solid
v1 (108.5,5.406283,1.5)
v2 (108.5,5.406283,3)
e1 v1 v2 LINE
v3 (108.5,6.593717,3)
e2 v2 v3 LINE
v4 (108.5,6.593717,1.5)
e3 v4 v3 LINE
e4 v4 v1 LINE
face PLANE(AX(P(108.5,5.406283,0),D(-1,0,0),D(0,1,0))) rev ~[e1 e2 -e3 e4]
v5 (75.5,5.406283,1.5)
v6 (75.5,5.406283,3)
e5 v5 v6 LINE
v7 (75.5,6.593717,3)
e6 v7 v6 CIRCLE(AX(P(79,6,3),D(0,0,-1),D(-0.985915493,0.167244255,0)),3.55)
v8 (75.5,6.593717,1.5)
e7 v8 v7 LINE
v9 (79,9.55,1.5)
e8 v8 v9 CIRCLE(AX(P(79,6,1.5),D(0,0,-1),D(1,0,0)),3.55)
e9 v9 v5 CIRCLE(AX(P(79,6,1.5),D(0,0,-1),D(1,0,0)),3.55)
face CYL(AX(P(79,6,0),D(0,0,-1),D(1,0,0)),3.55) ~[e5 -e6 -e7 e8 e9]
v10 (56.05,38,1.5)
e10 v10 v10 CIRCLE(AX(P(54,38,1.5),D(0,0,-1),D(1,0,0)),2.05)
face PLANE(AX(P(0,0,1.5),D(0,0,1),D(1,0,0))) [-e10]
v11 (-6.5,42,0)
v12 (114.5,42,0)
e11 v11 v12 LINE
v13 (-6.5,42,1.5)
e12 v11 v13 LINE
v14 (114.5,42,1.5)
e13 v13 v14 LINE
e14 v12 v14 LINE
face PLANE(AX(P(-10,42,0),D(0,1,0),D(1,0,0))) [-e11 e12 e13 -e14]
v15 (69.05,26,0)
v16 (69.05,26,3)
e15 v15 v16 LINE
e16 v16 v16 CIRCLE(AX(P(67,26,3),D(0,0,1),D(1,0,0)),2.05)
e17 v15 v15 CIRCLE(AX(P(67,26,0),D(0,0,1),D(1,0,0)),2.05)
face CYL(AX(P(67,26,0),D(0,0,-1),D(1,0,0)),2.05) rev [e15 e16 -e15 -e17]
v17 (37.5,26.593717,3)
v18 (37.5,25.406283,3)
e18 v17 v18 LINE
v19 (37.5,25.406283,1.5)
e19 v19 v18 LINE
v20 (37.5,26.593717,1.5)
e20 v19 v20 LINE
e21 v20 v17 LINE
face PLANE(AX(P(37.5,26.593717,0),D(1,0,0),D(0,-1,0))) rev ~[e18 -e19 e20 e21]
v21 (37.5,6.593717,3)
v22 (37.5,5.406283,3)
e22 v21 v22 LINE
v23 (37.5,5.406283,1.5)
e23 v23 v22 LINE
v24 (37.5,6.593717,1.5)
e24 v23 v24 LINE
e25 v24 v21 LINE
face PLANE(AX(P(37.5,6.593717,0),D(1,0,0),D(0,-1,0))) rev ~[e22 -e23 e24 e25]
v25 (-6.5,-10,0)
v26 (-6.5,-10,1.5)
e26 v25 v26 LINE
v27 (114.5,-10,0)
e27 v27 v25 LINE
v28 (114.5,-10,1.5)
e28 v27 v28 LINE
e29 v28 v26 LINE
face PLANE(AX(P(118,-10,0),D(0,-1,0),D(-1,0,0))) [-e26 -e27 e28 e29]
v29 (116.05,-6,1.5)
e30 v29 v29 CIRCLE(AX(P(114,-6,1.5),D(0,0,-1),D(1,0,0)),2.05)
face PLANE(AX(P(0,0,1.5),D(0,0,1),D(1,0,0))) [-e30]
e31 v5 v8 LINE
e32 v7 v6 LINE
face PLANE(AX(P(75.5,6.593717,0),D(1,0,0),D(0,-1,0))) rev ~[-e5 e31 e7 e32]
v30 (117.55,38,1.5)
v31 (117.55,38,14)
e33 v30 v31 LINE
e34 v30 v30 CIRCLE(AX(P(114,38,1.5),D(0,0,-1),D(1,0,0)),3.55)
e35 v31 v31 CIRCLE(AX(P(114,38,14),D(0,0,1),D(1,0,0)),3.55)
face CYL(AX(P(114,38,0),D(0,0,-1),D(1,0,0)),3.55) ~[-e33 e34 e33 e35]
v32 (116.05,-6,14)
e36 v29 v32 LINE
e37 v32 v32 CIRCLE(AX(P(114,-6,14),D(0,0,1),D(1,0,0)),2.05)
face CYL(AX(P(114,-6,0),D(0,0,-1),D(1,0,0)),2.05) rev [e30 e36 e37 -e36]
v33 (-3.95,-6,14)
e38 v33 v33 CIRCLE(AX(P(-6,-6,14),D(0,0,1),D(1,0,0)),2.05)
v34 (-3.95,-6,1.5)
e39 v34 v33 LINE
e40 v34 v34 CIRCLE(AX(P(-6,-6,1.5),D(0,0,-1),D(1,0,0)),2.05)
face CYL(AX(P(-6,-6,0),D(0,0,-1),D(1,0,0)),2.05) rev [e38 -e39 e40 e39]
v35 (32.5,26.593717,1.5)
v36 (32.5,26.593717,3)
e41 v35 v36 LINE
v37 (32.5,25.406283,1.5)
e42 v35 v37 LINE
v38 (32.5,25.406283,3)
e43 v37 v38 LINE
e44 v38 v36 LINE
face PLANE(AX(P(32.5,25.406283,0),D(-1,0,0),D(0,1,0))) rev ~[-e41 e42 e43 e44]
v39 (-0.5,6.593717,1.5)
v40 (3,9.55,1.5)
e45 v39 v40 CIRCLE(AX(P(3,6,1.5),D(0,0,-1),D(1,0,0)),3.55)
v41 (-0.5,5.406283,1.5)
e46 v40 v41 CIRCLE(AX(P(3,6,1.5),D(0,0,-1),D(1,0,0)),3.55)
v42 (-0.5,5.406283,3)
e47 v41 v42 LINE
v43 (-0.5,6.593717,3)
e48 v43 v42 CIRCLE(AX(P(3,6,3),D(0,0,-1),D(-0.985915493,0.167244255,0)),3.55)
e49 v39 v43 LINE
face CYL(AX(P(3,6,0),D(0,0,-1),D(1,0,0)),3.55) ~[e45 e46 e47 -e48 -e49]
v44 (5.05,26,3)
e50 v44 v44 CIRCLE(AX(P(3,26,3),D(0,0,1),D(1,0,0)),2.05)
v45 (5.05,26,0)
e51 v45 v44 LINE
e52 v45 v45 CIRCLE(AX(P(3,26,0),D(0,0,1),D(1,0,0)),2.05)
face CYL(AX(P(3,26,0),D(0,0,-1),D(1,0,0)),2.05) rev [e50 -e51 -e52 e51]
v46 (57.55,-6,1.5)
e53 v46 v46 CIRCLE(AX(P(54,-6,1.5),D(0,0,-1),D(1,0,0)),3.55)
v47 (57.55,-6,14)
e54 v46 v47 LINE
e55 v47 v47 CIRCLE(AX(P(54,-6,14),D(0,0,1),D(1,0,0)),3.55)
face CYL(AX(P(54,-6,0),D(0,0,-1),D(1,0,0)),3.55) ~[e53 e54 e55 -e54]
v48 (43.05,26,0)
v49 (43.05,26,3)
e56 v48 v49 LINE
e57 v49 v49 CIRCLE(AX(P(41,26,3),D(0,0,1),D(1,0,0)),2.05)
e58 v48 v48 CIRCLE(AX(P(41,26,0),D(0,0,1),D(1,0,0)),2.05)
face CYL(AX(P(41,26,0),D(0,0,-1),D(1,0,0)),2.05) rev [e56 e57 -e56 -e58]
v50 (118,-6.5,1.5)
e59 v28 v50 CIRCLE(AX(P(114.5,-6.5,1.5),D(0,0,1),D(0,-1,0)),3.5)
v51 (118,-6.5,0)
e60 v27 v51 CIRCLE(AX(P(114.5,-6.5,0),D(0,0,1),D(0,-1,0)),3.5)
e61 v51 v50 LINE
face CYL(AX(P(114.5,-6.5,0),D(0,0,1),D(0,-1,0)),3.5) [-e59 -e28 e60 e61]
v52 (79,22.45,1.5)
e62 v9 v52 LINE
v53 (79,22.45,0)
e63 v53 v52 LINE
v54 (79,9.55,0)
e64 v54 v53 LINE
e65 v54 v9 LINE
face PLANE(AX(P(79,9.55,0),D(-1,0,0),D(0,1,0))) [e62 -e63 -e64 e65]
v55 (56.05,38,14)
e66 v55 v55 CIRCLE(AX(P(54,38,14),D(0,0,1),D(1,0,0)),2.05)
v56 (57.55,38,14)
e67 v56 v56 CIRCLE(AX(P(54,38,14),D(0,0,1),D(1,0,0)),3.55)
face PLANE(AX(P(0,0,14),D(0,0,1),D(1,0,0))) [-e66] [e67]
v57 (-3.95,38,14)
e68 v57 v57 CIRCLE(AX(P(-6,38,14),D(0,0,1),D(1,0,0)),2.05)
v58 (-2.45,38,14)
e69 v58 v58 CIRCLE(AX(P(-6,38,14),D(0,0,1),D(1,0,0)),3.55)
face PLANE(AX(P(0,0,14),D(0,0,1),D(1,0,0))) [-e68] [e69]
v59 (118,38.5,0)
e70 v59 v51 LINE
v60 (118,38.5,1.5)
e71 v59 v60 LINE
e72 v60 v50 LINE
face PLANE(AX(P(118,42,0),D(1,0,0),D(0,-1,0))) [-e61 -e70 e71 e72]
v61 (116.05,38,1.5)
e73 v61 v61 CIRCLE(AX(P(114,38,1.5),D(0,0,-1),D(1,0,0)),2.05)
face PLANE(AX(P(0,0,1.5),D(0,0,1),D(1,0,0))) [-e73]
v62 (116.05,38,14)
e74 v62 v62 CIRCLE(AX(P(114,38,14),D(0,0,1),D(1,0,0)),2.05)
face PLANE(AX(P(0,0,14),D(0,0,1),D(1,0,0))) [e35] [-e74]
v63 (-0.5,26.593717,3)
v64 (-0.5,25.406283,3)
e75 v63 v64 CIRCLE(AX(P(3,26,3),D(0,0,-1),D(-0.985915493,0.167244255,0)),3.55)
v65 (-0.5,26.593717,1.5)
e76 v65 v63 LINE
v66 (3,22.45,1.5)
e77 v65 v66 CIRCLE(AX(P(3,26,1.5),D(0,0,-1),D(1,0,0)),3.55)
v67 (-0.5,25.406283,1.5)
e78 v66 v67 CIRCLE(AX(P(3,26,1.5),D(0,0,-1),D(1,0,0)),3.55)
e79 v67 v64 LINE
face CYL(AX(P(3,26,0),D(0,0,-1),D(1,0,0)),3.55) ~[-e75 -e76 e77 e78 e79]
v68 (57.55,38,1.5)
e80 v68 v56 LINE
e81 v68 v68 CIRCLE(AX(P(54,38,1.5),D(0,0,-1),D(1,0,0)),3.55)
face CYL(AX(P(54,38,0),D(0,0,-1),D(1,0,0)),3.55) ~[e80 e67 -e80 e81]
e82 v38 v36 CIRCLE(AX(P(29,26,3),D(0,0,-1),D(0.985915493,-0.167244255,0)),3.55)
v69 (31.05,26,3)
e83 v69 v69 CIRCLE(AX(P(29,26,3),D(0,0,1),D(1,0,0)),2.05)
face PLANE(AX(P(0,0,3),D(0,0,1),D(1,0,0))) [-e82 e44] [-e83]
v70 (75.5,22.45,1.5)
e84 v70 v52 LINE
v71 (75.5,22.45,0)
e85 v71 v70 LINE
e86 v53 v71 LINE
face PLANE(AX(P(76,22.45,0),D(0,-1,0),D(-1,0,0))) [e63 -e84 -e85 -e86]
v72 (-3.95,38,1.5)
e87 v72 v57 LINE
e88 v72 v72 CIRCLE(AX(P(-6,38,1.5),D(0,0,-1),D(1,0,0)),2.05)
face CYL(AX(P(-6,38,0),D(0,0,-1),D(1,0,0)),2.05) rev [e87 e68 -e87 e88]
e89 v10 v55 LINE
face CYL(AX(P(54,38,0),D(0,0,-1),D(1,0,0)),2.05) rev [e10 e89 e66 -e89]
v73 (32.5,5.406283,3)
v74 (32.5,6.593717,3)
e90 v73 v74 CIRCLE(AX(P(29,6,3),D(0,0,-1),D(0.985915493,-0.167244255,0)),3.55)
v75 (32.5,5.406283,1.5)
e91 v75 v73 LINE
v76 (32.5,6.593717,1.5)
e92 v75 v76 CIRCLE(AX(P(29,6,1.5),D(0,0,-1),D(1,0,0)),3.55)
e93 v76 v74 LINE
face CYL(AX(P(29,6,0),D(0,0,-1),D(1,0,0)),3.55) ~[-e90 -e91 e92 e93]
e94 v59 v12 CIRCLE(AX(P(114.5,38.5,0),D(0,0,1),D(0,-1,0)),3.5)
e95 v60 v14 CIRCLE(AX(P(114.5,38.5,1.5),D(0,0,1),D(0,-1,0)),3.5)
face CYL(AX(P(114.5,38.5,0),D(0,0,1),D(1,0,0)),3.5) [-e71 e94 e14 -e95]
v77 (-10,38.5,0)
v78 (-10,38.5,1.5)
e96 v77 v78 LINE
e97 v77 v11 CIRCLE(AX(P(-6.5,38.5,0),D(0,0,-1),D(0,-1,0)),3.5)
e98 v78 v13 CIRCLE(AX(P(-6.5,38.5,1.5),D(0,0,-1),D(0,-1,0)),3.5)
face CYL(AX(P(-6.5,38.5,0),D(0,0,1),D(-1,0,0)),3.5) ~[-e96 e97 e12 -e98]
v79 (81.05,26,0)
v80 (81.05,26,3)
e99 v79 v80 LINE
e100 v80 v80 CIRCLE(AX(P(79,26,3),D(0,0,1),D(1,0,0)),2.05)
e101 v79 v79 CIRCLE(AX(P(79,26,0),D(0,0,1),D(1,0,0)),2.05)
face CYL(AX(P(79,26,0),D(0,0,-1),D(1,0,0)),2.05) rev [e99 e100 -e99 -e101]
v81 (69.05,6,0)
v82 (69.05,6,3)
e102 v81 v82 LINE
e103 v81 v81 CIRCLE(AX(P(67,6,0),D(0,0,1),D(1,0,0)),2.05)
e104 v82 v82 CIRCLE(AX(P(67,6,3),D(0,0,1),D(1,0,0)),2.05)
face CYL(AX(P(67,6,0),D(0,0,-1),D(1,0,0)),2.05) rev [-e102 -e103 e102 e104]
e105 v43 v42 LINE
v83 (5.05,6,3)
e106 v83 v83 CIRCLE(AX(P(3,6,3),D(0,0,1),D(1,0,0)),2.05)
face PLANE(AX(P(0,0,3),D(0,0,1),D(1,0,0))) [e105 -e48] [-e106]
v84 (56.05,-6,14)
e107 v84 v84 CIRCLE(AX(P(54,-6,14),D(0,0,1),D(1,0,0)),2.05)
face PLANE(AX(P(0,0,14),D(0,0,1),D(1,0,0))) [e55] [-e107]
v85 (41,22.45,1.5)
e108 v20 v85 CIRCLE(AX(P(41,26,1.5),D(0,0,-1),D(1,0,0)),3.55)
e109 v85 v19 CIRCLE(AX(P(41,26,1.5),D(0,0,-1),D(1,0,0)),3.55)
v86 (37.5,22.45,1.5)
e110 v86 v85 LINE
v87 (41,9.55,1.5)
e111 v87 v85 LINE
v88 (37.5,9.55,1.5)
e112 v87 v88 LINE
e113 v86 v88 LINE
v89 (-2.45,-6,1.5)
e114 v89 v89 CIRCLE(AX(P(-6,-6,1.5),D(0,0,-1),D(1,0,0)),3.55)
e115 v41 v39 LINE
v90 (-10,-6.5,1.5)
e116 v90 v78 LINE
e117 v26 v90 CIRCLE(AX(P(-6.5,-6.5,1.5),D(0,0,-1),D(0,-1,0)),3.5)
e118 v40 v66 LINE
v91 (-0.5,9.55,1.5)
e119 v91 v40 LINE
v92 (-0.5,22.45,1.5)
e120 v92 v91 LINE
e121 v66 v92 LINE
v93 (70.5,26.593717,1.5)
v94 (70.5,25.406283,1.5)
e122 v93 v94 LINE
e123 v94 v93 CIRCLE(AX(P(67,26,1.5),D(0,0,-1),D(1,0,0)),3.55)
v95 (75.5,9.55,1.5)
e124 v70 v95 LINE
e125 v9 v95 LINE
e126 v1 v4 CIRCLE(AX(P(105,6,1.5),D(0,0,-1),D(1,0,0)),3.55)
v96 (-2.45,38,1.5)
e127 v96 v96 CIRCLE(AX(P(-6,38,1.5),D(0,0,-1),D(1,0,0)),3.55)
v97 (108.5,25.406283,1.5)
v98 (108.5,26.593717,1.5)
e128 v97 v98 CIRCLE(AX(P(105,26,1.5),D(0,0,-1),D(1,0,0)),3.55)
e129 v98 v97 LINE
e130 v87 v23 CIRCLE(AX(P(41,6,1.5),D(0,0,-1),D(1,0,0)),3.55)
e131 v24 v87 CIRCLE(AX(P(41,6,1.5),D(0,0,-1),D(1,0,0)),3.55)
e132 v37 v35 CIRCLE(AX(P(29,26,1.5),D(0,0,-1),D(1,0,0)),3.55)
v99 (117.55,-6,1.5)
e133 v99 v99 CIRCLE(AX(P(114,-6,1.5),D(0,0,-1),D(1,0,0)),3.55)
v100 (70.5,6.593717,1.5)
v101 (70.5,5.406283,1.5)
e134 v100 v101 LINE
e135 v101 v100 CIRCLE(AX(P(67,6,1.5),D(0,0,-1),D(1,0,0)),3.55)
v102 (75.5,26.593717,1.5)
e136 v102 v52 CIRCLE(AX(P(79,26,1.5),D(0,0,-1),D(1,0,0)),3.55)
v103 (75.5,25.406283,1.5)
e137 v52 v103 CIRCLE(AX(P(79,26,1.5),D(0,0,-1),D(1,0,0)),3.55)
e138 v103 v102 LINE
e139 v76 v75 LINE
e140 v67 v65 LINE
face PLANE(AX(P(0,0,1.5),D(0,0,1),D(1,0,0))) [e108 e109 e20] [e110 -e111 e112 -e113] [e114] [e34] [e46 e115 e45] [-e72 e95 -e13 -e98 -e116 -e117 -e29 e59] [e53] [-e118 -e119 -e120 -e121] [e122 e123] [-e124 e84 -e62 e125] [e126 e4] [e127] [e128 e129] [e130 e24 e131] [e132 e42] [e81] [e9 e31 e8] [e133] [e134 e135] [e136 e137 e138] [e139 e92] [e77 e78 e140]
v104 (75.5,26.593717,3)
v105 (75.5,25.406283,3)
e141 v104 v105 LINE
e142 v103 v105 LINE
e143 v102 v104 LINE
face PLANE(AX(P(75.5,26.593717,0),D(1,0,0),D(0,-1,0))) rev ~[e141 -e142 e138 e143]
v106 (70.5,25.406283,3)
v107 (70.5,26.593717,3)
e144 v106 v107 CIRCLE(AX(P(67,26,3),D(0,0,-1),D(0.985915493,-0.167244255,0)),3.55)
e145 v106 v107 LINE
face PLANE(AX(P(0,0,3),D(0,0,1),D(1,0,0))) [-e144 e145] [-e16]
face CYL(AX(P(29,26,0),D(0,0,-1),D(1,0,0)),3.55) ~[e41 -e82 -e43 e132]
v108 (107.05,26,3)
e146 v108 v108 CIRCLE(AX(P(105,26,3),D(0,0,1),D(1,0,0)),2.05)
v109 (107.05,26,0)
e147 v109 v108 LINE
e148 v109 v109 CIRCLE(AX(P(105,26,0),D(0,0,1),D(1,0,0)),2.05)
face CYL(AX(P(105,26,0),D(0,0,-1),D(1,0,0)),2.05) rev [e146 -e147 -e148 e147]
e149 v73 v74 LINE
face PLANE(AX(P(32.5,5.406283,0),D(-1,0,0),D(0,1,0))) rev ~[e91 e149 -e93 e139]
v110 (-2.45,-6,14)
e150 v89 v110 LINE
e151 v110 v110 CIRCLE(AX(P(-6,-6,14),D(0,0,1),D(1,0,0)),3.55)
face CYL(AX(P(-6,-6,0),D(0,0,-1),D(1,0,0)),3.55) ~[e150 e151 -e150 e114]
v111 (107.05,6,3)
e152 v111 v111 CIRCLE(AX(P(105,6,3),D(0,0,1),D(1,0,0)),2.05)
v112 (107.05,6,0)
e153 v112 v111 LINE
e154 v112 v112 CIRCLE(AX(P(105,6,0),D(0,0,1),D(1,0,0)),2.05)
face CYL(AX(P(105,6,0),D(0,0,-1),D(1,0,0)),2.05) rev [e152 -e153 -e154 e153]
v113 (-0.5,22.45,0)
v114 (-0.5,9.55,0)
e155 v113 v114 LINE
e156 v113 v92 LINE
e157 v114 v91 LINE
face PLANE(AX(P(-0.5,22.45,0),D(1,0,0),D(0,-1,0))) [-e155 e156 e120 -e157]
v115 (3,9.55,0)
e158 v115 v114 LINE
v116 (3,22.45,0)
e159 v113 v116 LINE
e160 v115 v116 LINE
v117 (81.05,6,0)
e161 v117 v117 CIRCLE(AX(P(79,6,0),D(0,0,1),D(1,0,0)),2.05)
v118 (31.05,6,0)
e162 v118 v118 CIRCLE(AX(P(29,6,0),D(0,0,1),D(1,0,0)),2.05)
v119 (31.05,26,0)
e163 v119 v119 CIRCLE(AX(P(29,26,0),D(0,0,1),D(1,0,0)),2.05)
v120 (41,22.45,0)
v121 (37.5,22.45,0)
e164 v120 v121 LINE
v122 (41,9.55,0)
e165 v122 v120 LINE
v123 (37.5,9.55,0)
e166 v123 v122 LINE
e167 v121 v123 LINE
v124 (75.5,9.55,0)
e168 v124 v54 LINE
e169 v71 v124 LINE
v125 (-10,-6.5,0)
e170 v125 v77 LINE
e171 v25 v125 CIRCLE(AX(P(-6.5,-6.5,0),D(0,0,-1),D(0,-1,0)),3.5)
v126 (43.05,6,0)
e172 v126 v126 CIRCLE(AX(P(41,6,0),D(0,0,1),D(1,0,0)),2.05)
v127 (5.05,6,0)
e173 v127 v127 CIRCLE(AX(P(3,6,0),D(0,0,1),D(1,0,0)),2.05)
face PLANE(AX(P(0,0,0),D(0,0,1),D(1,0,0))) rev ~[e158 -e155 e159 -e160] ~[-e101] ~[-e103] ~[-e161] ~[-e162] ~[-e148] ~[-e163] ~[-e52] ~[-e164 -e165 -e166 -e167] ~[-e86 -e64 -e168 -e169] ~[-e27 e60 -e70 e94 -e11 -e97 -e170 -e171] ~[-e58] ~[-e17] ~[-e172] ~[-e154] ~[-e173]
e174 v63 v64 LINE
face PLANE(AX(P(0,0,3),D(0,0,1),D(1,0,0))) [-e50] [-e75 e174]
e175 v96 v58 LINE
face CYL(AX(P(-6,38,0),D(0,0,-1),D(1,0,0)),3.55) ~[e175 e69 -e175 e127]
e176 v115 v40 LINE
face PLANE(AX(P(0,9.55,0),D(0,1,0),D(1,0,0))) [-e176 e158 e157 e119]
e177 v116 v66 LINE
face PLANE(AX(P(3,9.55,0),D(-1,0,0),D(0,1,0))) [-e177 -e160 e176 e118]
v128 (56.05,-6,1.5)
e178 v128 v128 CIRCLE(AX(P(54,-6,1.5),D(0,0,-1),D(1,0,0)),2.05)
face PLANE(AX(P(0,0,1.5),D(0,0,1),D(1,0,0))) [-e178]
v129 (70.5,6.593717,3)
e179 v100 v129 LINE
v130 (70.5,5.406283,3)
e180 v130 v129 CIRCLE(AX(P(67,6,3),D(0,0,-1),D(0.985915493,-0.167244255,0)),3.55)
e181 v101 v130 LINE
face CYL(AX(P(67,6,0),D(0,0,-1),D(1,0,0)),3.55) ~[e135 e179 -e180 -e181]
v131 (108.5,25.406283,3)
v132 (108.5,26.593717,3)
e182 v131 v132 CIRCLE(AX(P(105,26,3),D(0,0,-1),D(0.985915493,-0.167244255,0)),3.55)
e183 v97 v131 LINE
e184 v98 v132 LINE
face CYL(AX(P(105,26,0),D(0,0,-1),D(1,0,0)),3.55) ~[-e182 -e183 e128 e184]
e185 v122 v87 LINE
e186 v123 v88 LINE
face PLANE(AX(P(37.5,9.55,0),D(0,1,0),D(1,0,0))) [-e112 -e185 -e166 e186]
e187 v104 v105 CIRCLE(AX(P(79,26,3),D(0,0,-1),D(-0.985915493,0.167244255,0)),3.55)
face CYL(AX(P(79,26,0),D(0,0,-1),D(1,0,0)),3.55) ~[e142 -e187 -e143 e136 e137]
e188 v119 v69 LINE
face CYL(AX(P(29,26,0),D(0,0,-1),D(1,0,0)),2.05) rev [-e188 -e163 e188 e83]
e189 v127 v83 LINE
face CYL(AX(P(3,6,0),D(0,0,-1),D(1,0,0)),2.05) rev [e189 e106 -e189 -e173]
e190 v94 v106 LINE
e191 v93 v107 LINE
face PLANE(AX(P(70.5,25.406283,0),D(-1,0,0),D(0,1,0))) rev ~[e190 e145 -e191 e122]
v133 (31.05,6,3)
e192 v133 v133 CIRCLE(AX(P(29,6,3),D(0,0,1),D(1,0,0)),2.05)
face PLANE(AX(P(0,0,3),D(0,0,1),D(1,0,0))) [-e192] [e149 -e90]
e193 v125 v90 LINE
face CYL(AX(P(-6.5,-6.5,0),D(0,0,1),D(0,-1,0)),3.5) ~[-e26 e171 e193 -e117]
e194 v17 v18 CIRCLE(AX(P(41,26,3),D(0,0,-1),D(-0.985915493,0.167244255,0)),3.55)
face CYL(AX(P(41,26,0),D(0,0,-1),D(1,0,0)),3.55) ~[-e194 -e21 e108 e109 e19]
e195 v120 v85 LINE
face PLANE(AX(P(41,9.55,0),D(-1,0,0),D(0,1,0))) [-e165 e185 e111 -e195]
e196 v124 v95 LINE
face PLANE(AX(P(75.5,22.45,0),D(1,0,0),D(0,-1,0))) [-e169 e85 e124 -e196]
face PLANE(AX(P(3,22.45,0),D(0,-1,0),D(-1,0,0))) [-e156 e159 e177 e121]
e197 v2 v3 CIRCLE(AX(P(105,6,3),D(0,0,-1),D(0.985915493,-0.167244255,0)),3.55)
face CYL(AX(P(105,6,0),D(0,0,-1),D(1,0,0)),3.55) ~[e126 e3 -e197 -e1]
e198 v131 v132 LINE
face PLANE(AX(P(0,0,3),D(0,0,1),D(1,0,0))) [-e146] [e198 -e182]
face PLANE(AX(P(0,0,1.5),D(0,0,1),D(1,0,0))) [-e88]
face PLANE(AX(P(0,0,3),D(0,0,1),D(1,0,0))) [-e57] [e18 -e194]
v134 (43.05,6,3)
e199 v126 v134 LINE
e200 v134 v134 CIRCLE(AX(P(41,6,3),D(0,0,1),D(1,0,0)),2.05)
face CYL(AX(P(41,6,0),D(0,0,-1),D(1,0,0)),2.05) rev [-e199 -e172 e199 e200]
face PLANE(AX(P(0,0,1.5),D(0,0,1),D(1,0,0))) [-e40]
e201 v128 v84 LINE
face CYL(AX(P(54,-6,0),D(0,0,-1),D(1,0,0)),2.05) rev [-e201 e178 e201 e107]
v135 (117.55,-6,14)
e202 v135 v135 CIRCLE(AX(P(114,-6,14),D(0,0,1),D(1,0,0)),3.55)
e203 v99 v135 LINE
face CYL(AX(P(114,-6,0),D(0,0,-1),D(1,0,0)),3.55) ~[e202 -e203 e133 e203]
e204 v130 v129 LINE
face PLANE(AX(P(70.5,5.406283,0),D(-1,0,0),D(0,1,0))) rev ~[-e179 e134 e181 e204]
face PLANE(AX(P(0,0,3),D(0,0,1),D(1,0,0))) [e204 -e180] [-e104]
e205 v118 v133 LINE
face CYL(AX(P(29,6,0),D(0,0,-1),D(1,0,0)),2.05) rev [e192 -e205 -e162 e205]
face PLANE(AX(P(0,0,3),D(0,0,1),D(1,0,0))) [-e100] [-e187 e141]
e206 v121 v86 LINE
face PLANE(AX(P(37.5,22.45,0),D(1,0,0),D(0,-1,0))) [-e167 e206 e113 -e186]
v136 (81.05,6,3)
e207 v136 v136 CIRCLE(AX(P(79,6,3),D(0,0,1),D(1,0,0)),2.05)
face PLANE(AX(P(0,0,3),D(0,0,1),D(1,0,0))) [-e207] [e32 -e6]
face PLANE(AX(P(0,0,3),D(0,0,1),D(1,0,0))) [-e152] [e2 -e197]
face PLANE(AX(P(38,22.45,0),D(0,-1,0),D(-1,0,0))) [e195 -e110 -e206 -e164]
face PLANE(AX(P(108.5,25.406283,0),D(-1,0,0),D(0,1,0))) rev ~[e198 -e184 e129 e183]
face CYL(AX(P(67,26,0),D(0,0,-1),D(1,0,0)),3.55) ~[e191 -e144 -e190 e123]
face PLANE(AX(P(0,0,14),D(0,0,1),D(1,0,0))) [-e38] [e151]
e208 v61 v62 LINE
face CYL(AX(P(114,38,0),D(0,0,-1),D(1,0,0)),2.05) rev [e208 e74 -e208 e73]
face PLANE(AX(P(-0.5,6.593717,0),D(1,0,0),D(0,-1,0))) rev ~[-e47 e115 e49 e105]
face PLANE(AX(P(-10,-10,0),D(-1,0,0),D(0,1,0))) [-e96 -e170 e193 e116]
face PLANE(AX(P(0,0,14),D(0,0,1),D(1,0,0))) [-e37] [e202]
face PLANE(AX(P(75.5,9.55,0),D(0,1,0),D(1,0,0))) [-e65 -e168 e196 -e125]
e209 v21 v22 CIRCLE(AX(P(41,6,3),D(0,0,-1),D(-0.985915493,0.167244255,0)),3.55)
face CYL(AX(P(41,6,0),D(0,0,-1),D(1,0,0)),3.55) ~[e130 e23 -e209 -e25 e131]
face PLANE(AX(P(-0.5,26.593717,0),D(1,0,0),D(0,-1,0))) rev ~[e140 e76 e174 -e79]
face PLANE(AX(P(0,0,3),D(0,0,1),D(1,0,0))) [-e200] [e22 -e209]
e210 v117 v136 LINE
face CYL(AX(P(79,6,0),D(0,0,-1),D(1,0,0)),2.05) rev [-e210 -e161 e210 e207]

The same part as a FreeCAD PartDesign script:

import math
import FreeCAD as App
import Part
import Sketcher
from FreeCAD import Vector


def edges_at(feature, points):
    """Names of the edges that pass closest to the given points."""
    edges = feature.Shape.Edges
    near = lambda p: min(range(len(edges)), key=lambda i: edges[i].distToShape(Part.Vertex(*p))[0])
    return sorted({f"Edge{near(p) + 1}" for p in points})


def add_polygon(sketch, points):
    """Adds a closed chain of lines whose ends are joined by coincident constraints."""
    first, n = sketch.GeometryCount, len(points)
    for a, b in zip(points, points[1:] + points[:1]):
        sketch.addGeometry(Part.LineSegment(App.Vector(*a, 0), App.Vector(*b, 0)), False)
    for i in range(n):
        sketch.addConstraint(Sketcher.Constraint("Coincident", first + i, 2, first + (i + 1) % n, 1))

doc = App.newDocument("Part")
body = doc.addObject("PartDesign::Body", "Body")

# Sketch on XY plane
sketch1 = body.newObject("Sketcher::SketchObject", "Sketch")
sketch1.AttachmentSupport = (doc.getObject("XY_Plane"), [""])
sketch1.MapMode = "FlatFace"
add_polygon(sketch1, [(-10, -10), (118, -10), (118, 42), (-10, 42)])  # lines 0-3
add_polygon(sketch1, [(3, 22.4), (3, 9.6), (-0.5, 9.6), (-0.5, 22.4)])  # lines 4-7
sketch1.addGeometry(Part.Circle(Vector(3, 6, 0), Vector(0, 0, 1), 2), False)  # 8
sketch1.addGeometry(Part.Circle(Vector(3, 26, 0), Vector(0, 0, 1), 2), False)  # 9
sketch1.addGeometry(Part.Circle(Vector(29, 26, 0), Vector(0, 0, 1), 2), False)  # 10
sketch1.addGeometry(Part.Circle(Vector(29, 6, 0), Vector(0, 0, 1), 2), False)  # 11
add_polygon(sketch1, [(37.5, 9.6), (37.5, 22.4), (41, 22.4), (41, 9.6)])  # lines 12-15
add_polygon(sketch1, [(75.5, 9.6), (75.5, 22.4), (79, 22.4), (79, 9.6)])  # lines 16-19
sketch1.addGeometry(Part.Circle(Vector(105, 26, 0), Vector(0, 0, 1), 2), False)  # 20
sketch1.addGeometry(Part.Circle(Vector(105, 6, 0), Vector(0, 0, 1), 2), False)  # 21
sketch1.addGeometry(Part.Circle(Vector(79, 26, 0), Vector(0, 0, 1), 2), False)  # 22
sketch1.addGeometry(Part.Circle(Vector(79, 6, 0), Vector(0, 0, 1), 2), False)  # 23
sketch1.addGeometry(Part.Circle(Vector(41, 26, 0), Vector(0, 0, 1), 2), False)  # 24
sketch1.addGeometry(Part.Circle(Vector(67, 26, 0), Vector(0, 0, 1), 2), False)  # 25
sketch1.addGeometry(Part.Circle(Vector(41, 6, 0), Vector(0, 0, 1), 2), False)  # 26
sketch1.addGeometry(Part.Circle(Vector(67, 6, 0), Vector(0, 0, 1), 2), False)  # 27
sketch1.addConstraint(Sketcher.Constraint("Horizontal", 0))
sketch1.addConstraint(Sketcher.Constraint("Vertical", 1))
sketch1.addConstraint(Sketcher.Constraint("Horizontal", 2))
sketch1.addConstraint(Sketcher.Constraint("Vertical", 3))
sketch1.addConstraint(Sketcher.Constraint("Vertical", 4))
sketch1.addConstraint(Sketcher.Constraint("Horizontal", 5))
sketch1.addConstraint(Sketcher.Constraint("Vertical", 6))
sketch1.addConstraint(Sketcher.Constraint("Horizontal", 7))
sketch1.addConstraint(Sketcher.Constraint("Vertical", 12))
sketch1.addConstraint(Sketcher.Constraint("Horizontal", 13))
sketch1.addConstraint(Sketcher.Constraint("Vertical", 14))
sketch1.addConstraint(Sketcher.Constraint("Horizontal", 15))
sketch1.addConstraint(Sketcher.Constraint("Vertical", 16))
sketch1.addConstraint(Sketcher.Constraint("Horizontal", 17))
sketch1.addConstraint(Sketcher.Constraint("Vertical", 18))
sketch1.addConstraint(Sketcher.Constraint("Horizontal", 19))
sketch1.addConstraint(Sketcher.Constraint("Equal", 8, 9))
sketch1.addConstraint(Sketcher.Constraint("Equal", 9, 10))
sketch1.addConstraint(Sketcher.Constraint("Equal", 10, 11))
sketch1.addConstraint(Sketcher.Constraint("Equal", 11, 20))
sketch1.addConstraint(Sketcher.Constraint("Equal", 20, 21))
sketch1.addConstraint(Sketcher.Constraint("Equal", 21, 22))
sketch1.addConstraint(Sketcher.Constraint("Equal", 22, 23))
sketch1.addConstraint(Sketcher.Constraint("Equal", 23, 24))
sketch1.addConstraint(Sketcher.Constraint("Equal", 24, 25))
sketch1.addConstraint(Sketcher.Constraint("Equal", 25, 26))
sketch1.addConstraint(Sketcher.Constraint("Equal", 26, 27))
sketch1.addConstraint(Sketcher.Constraint("Horizontal", 9, 3, 10, 3))
sketch1.addConstraint(Sketcher.Constraint("Horizontal", 8, 3, 11, 3))
sketch1.addConstraint(Sketcher.Constraint("Horizontal", 10, 3, 20, 3))
sketch1.addConstraint(Sketcher.Constraint("Horizontal", 11, 3, 21, 3))
sketch1.addConstraint(Sketcher.Constraint("Horizontal", 20, 3, 22, 3))
sketch1.addConstraint(Sketcher.Constraint("Horizontal", 21, 3, 23, 3))
sketch1.addConstraint(Sketcher.Constraint("Horizontal", 22, 3, 24, 3))
sketch1.addConstraint(Sketcher.Constraint("Horizontal", 24, 3, 25, 3))
sketch1.addConstraint(Sketcher.Constraint("Horizontal", 23, 3, 26, 3))
sketch1.addConstraint(Sketcher.Constraint("Horizontal", 26, 3, 27, 3))
sketch1.addConstraint(Sketcher.Constraint("Horizontal", 7, 2, 12, 2))
sketch1.addConstraint(Sketcher.Constraint("Horizontal", 5, 2, 14, 2))
sketch1.addConstraint(Sketcher.Constraint("Horizontal", 13, 2, 16, 2))
sketch1.addConstraint(Sketcher.Constraint("Horizontal", 15, 2, 18, 2))
sketch1.addConstraint(Sketcher.Constraint("Vertical", 8, 3, 9, 3))
sketch1.addConstraint(Sketcher.Constraint("Vertical", 10, 3, 11, 3))
sketch1.addConstraint(Sketcher.Constraint("Vertical", 20, 3, 21, 3))
sketch1.addConstraint(Sketcher.Constraint("Vertical", 22, 3, 23, 3))
sketch1.addConstraint(Sketcher.Constraint("Vertical", 24, 3, 26, 3))
sketch1.addConstraint(Sketcher.Constraint("Vertical", 25, 3, 27, 3))
sketch1.addConstraint(Sketcher.Constraint("Vertical", 9, 3, 4, 2))
sketch1.addConstraint(Sketcher.Constraint("Vertical", 26, 3, 13, 2))
sketch1.addConstraint(Sketcher.Constraint("Vertical", 23, 3, 17, 2))
sketch1.addConstraint(Sketcher.Constraint("Equal", 7, 13))
sketch1.addConstraint(Sketcher.Constraint("Equal", 15, 17))
sketch1.addConstraint(Sketcher.Constraint("Diameter", 8, 4.1))
sketch1.addConstraint(Sketcher.Constraint("DistanceX", 5, 2, 5, 1, 3.5))
sketch1.addConstraint(Sketcher.Constraint("DistanceY", 4, 2, 4, 1, 12.9))
sketch1.addConstraint(Sketcher.Constraint("DistanceX", -1, 1, 8, 3, 3.0))
sketch1.addConstraint(Sketcher.Constraint("DistanceY", -1, 1, 8, 3, 6.0))
sketch1.addConstraint(Sketcher.Constraint("DistanceY", -1, 1, 9, 3, 26.0))
sketch1.addConstraint(Sketcher.Constraint("DistanceY", 0, 2, -1, 1, 10.0))
sketch1.addConstraint(Sketcher.Constraint("DistanceX", 2, 2, -1, 1, 10.0))
sketch1.addConstraint(Sketcher.Constraint("DistanceX", 9, 3, 10, 3, 26.0))
sketch1.addConstraint(Sketcher.Constraint("DistanceX", 10, 3, 20, 3, 76.0))
sketch1.addConstraint(Sketcher.Constraint("DistanceX", 22, 3, 20, 3, 26.0))
sketch1.addConstraint(Sketcher.Constraint("DistanceX", 24, 3, 25, 3, 26.0))
sketch1.addConstraint(Sketcher.Constraint("DistanceX", 0, 1, 0, 2, 128.0))
sketch1.addConstraint(Sketcher.Constraint("DistanceY", 1, 1, 1, 2, 52.0))
sketch1.addConstraint(Sketcher.Constraint("DistanceY", -1, 1, 4, 2, 9.55))
sketch1.addConstraint(Sketcher.Constraint("DistanceX", -1, 1, 24, 3, 41.0))
pad1 = body.newObject("PartDesign::Pad", "Pad")
pad1.Profile = sketch1
pad1.Length = 1.5

# Sketch on XY plane
sketch2 = body.newObject("Sketcher::SketchObject", "Sketch001")
sketch2.AttachmentSupport = (doc.getObject("XY_Plane"), [""])
sketch2.MapMode = "FlatFace"
sketch2.addGeometry(Part.ArcOfCircle(Part.Circle(Vector(3, 6, 0), Vector(0, 0, 1), 3.5), math.radians(-170), math.radians(170)), False)
sketch2.addGeometry(Part.LineSegment(Vector(-0.5, 6.6, 0), Vector(-0.5, 5.4, 0)), False)
sketch2.addGeometry(Part.Circle(Vector(3, 6, 0), Vector(0, 0, 1), 2), False)
sketch2.addGeometry(Part.LineSegment(Vector(32.5, 5.4, 0), Vector(32.5, 6.6, 0)), False)
sketch2.addGeometry(Part.ArcOfCircle(Part.Circle(Vector(29, 6, 0), Vector(0, 0, 1), 3.5), math.radians(10), math.radians(350)), False)
sketch2.addGeometry(Part.Circle(Vector(29, 6, 0), Vector(0, 0, 1), 2), False)
sketch2.addGeometry(Part.LineSegment(Vector(32.5, 25.4, 0), Vector(32.5, 26.6, 0)), False)
sketch2.addGeometry(Part.ArcOfCircle(Part.Circle(Vector(29, 26, 0), Vector(0, 0, 1), 3.5), math.radians(10), math.radians(350)), False)
sketch2.addGeometry(Part.Circle(Vector(29, 26, 0), Vector(0, 0, 1), 2), False)
sketch2.addGeometry(Part.LineSegment(Vector(-0.5, 26.6, 0), Vector(-0.5, 25.4, 0)), False)
sketch2.addGeometry(Part.ArcOfCircle(Part.Circle(Vector(3, 26, 0), Vector(0, 0, 1), 3.5), math.radians(-170), math.radians(170)), False)
sketch2.addGeometry(Part.Circle(Vector(3, 26, 0), Vector(0, 0, 1), 2), False)
sketch2.addGeometry(Part.ArcOfCircle(Part.Circle(Vector(67, 26, 0), Vector(0, 0, 1), 3.5), math.radians(10), math.radians(350)), False)
sketch2.addGeometry(Part.LineSegment(Vector(70.5, 25.4, 0), Vector(70.5, 26.6, 0)), False)
sketch2.addGeometry(Part.Circle(Vector(67, 26, 0), Vector(0, 0, 1), 2), False)
sketch2.addGeometry(Part.LineSegment(Vector(37.5, 26.6, 0), Vector(37.5, 25.4, 0)), False)
sketch2.addGeometry(Part.ArcOfCircle(Part.Circle(Vector(41, 26, 0), Vector(0, 0, 1), 3.5), math.radians(-170), math.radians(170)), False)
sketch2.addGeometry(Part.Circle(Vector(41, 26, 0), Vector(0, 0, 1), 2), False)
sketch2.addGeometry(Part.ArcOfCircle(Part.Circle(Vector(67, 6, 0), Vector(0, 0, 1), 3.5), math.radians(10), math.radians(350)), False)
sketch2.addGeometry(Part.LineSegment(Vector(70.5, 5.4, 0), Vector(70.5, 6.6, 0)), False)
sketch2.addGeometry(Part.Circle(Vector(67, 6, 0), Vector(0, 0, 1), 2), False)
sketch2.addGeometry(Part.LineSegment(Vector(37.5, 6.6, 0), Vector(37.5, 5.4, 0)), False)
sketch2.addGeometry(Part.ArcOfCircle(Part.Circle(Vector(41, 6, 0), Vector(0, 0, 1), 3.5), math.radians(-170), math.radians(170)), False)
sketch2.addGeometry(Part.Circle(Vector(41, 6, 0), Vector(0, 0, 1), 2), False)
sketch2.addGeometry(Part.ArcOfCircle(Part.Circle(Vector(105, 26, 0), Vector(0, 0, 1), 3.5), math.radians(10), math.radians(350)), False)
sketch2.addGeometry(Part.LineSegment(Vector(108.5, 25.4, 0), Vector(108.5, 26.6, 0)), False)
sketch2.addGeometry(Part.Circle(Vector(105, 26, 0), Vector(0, 0, 1), 2), False)
sketch2.addGeometry(Part.LineSegment(Vector(75.5, 26.6, 0), Vector(75.5, 25.4, 0)), False)
sketch2.addGeometry(Part.ArcOfCircle(Part.Circle(Vector(79, 26, 0), Vector(0, 0, 1), 3.5), math.radians(-170), math.radians(170)), False)
sketch2.addGeometry(Part.Circle(Vector(79, 26, 0), Vector(0, 0, 1), 2), False)
sketch2.addGeometry(Part.ArcOfCircle(Part.Circle(Vector(105, 6, 0), Vector(0, 0, 1), 3.5), math.radians(10), math.radians(350)), False)
sketch2.addGeometry(Part.LineSegment(Vector(108.5, 5.4, 0), Vector(108.5, 6.6, 0)), False)
sketch2.addGeometry(Part.Circle(Vector(105, 6, 0), Vector(0, 0, 1), 2), False)
sketch2.addGeometry(Part.LineSegment(Vector(75.5, 6.6, 0), Vector(75.5, 5.4, 0)), False)
sketch2.addGeometry(Part.ArcOfCircle(Part.Circle(Vector(79, 6, 0), Vector(0, 0, 1), 3.5), math.radians(-170), math.radians(170)), False)
sketch2.addGeometry(Part.Circle(Vector(79, 6, 0), Vector(0, 0, 1), 2), False)
sketch2.addConstraint(Sketcher.Constraint("Coincident", 0, 1, 1, 2))
sketch2.addConstraint(Sketcher.Constraint("Coincident", 1, 1, 0, 2))
sketch2.addConstraint(Sketcher.Constraint("Coincident", 3, 1, 4, 2))
sketch2.addConstraint(Sketcher.Constraint("Coincident", 4, 1, 3, 2))
sketch2.addConstraint(Sketcher.Constraint("Coincident", 6, 1, 7, 2))
sketch2.addConstraint(Sketcher.Constraint("Coincident", 7, 1, 6, 2))
sketch2.addConstraint(Sketcher.Constraint("Coincident", 9, 1, 10, 2))
sketch2.addConstraint(Sketcher.Constraint("Coincident", 10, 1, 9, 2))
sketch2.addConstraint(Sketcher.Constraint("Coincident", 12, 1, 13, 2))
sketch2.addConstraint(Sketcher.Constraint("Coincident", 13, 1, 12, 2))
sketch2.addConstraint(Sketcher.Constraint("Coincident", 15, 1, 16, 2))
sketch2.addConstraint(Sketcher.Constraint("Coincident", 16, 1, 15, 2))
sketch2.addConstraint(Sketcher.Constraint("Coincident", 18, 1, 19, 2))
sketch2.addConstraint(Sketcher.Constraint("Coincident", 19, 1, 18, 2))
sketch2.addConstraint(Sketcher.Constraint("Coincident", 21, 1, 22, 2))
sketch2.addConstraint(Sketcher.Constraint("Coincident", 22, 1, 21, 2))
sketch2.addConstraint(Sketcher.Constraint("Coincident", 24, 1, 25, 2))
sketch2.addConstraint(Sketcher.Constraint("Coincident", 25, 1, 24, 2))
sketch2.addConstraint(Sketcher.Constraint("Coincident", 27, 1, 28, 2))
sketch2.addConstraint(Sketcher.Constraint("Coincident", 28, 1, 27, 2))
sketch2.addConstraint(Sketcher.Constraint("Coincident", 30, 1, 31, 2))
sketch2.addConstraint(Sketcher.Constraint("Coincident", 31, 1, 30, 2))
sketch2.addConstraint(Sketcher.Constraint("Coincident", 33, 1, 34, 2))
sketch2.addConstraint(Sketcher.Constraint("Coincident", 34, 1, 33, 2))
sketch2.addConstraint(Sketcher.Constraint("Vertical", 1))
sketch2.addConstraint(Sketcher.Constraint("Vertical", 3))
sketch2.addConstraint(Sketcher.Constraint("Vertical", 6))
sketch2.addConstraint(Sketcher.Constraint("Vertical", 9))
sketch2.addConstraint(Sketcher.Constraint("Vertical", 13))
sketch2.addConstraint(Sketcher.Constraint("Vertical", 15))
sketch2.addConstraint(Sketcher.Constraint("Vertical", 19))
sketch2.addConstraint(Sketcher.Constraint("Vertical", 21))
sketch2.addConstraint(Sketcher.Constraint("Vertical", 25))
sketch2.addConstraint(Sketcher.Constraint("Vertical", 27))
sketch2.addConstraint(Sketcher.Constraint("Vertical", 31))
sketch2.addConstraint(Sketcher.Constraint("Vertical", 33))
sketch2.addConstraint(Sketcher.Constraint("Coincident", 2, 3, 0, 3))
sketch2.addConstraint(Sketcher.Constraint("Coincident", 5, 3, 4, 3))
sketch2.addConstraint(Sketcher.Constraint("Coincident", 8, 3, 7, 3))
sketch2.addConstraint(Sketcher.Constraint("Coincident", 11, 3, 10, 3))
sketch2.addConstraint(Sketcher.Constraint("Coincident", 14, 3, 12, 3))
sketch2.addConstraint(Sketcher.Constraint("Coincident", 17, 3, 16, 3))
sketch2.addConstraint(Sketcher.Constraint("Coincident", 20, 3, 18, 3))
sketch2.addConstraint(Sketcher.Constraint("Coincident", 23, 3, 22, 3))
sketch2.addConstraint(Sketcher.Constraint("Coincident", 26, 3, 24, 3))
sketch2.addConstraint(Sketcher.Constraint("Coincident", 29, 3, 28, 3))
sketch2.addConstraint(Sketcher.Constraint("Coincident", 32, 3, 30, 3))
sketch2.addConstraint(Sketcher.Constraint("Coincident", 35, 3, 34, 3))
sketch2.addConstraint(Sketcher.Constraint("Equal", 0, 4))
sketch2.addConstraint(Sketcher.Constraint("Equal", 2, 5))
sketch2.addConstraint(Sketcher.Constraint("Equal", 4, 7))
sketch2.addConstraint(Sketcher.Constraint("Equal", 5, 8))
sketch2.addConstraint(Sketcher.Constraint("Equal", 7, 10))
sketch2.addConstraint(Sketcher.Constraint("Equal", 8, 11))
sketch2.addConstraint(Sketcher.Constraint("Equal", 10, 12))
sketch2.addConstraint(Sketcher.Constraint("Equal", 11, 14))
sketch2.addConstraint(Sketcher.Constraint("Equal", 12, 16))
sketch2.addConstraint(Sketcher.Constraint("Equal", 14, 17))
sketch2.addConstraint(Sketcher.Constraint("Equal", 16, 18))
sketch2.addConstraint(Sketcher.Constraint("Equal", 17, 20))
sketch2.addConstraint(Sketcher.Constraint("Equal", 18, 22))
sketch2.addConstraint(Sketcher.Constraint("Equal", 20, 23))
sketch2.addConstraint(Sketcher.Constraint("Equal", 22, 24))
sketch2.addConstraint(Sketcher.Constraint("Equal", 23, 26))
sketch2.addConstraint(Sketcher.Constraint("Equal", 24, 28))
sketch2.addConstraint(Sketcher.Constraint("Equal", 26, 29))
sketch2.addConstraint(Sketcher.Constraint("Equal", 28, 30))
sketch2.addConstraint(Sketcher.Constraint("Equal", 29, 32))
sketch2.addConstraint(Sketcher.Constraint("Equal", 30, 34))
sketch2.addConstraint(Sketcher.Constraint("Equal", 32, 35))
sketch2.addConstraint(Sketcher.Constraint("Horizontal", 2, 3, 4, 3))
sketch2.addConstraint(Sketcher.Constraint("Horizontal", 8, 3, 10, 3))
sketch2.addConstraint(Sketcher.Constraint("Horizontal", 11, 3, 12, 3))
sketch2.addConstraint(Sketcher.Constraint("Horizontal", 14, 3, 16, 3))
sketch2.addConstraint(Sketcher.Constraint("Horizontal", 5, 3, 18, 3))
sketch2.addConstraint(Sketcher.Constraint("Horizontal", 20, 3, 22, 3))
sketch2.addConstraint(Sketcher.Constraint("Horizontal", 17, 3, 24, 3))
sketch2.addConstraint(Sketcher.Constraint("Horizontal", 26, 3, 28, 3))
sketch2.addConstraint(Sketcher.Constraint("Horizontal", 23, 3, 30, 3))
sketch2.addConstraint(Sketcher.Constraint("Horizontal", 32, 3, 34, 3))
sketch2.addConstraint(Sketcher.Constraint("Horizontal", 0, 1, 3, 1))
sketch2.addConstraint(Sketcher.Constraint("Horizontal", 7, 1, 9, 1))
sketch2.addConstraint(Sketcher.Constraint("Horizontal", 9, 1, 12, 1))
sketch2.addConstraint(Sketcher.Constraint("Horizontal", 12, 1, 15, 1))
sketch2.addConstraint(Sketcher.Constraint("Horizontal", 4, 1, 18, 1))
sketch2.addConstraint(Sketcher.Constraint("Horizontal", 18, 1, 21, 1))
sketch2.addConstraint(Sketcher.Constraint("Horizontal", 15, 1, 24, 1))
sketch2.addConstraint(Sketcher.Constraint("Horizontal", 24, 1, 27, 1))
sketch2.addConstraint(Sketcher.Constraint("Horizontal", 21, 1, 30, 1))
sketch2.addConstraint(Sketcher.Constraint("Horizontal", 30, 1, 33, 1))
sketch2.addConstraint(Sketcher.Constraint("Vertical", 5, 3, 7, 3))
sketch2.addConstraint(Sketcher.Constraint("Vertical", 2, 3, 10, 3))
sketch2.addConstraint(Sketcher.Constraint("Vertical", 14, 3, 18, 3))
sketch2.addConstraint(Sketcher.Constraint("Vertical", 17, 3, 22, 3))
sketch2.addConstraint(Sketcher.Constraint("Vertical", 26, 3, 30, 3))
sketch2.addConstraint(Sketcher.Constraint("Vertical", 29, 3, 34, 3))
sketch2.addConstraint(Sketcher.Constraint("Vertical", 4, 1, 6, 1))
sketch2.addConstraint(Sketcher.Constraint("Diameter", 2, 4.1))
sketch2.addConstraint(Sketcher.Constraint("Radius", 0, 3.55))
sketch2.addConstraint(Sketcher.Constraint("DistanceX", -1, 1, 0, 3, 3.0))
sketch2.addConstraint(Sketcher.Constraint("DistanceY", -1, 1, 0, 3, 6.0))
sketch2.addConstraint(Sketcher.Constraint("DistanceY", -1, 1, 7, 3, 26.0))
sketch2.addConstraint(Sketcher.Constraint("DistanceX", 0, 3, 4, 3, 26.0))
sketch2.addConstraint(Sketcher.Constraint("DistanceX", 16, 3, 12, 3, 26.0))
sketch2.addConstraint(Sketcher.Constraint("DistanceX", 28, 3, 24, 3, 26.0))
sketch2.addConstraint(Sketcher.Constraint("DistanceX", 0, 1, -1, 1, 0.5))
sketch2.addConstraint(Sketcher.Constraint("DistanceX", -1, 1, 12, 3, 67.0))
sketch2.addConstraint(Sketcher.Constraint("DistanceX", -1, 1, 24, 3, 105.0))
pad2 = body.newObject("PartDesign::Pad", "Pad001")
pad2.Profile = sketch2
pad2.Length = 3

# Sketch on XY plane
sketch3 = body.newObject("Sketcher::SketchObject", "Sketch002")
sketch3.AttachmentSupport = (doc.getObject("XY_Plane"), [""])
sketch3.MapMode = "FlatFace"
sketch3.addGeometry(Part.Circle(Vector(-6, 38, 0), Vector(0, 0, 1), 3.5), False)
sketch3.addGeometry(Part.Circle(Vector(-6, 38, 0), Vector(0, 0, 1), 2), False)
sketch3.addGeometry(Part.Circle(Vector(54, 38, 0), Vector(0, 0, 1), 3.5), False)
sketch3.addGeometry(Part.Circle(Vector(54, 38, 0), Vector(0, 0, 1), 2), False)
sketch3.addGeometry(Part.Circle(Vector(114, 38, 0), Vector(0, 0, 1), 3.5), False)
sketch3.addGeometry(Part.Circle(Vector(114, 38, 0), Vector(0, 0, 1), 2), False)
sketch3.addGeometry(Part.Circle(Vector(-6, -6, 0), Vector(0, 0, 1), 3.5), False)
sketch3.addGeometry(Part.Circle(Vector(-6, -6, 0), Vector(0, 0, 1), 2), False)
sketch3.addGeometry(Part.Circle(Vector(54, -6, 0), Vector(0, 0, 1), 3.5), False)
sketch3.addGeometry(Part.Circle(Vector(54, -6, 0), Vector(0, 0, 1), 2), False)
sketch3.addGeometry(Part.Circle(Vector(114, -6, 0), Vector(0, 0, 1), 3.5), False)
sketch3.addGeometry(Part.Circle(Vector(114, -6, 0), Vector(0, 0, 1), 2), False)
sketch3.addConstraint(Sketcher.Constraint("Coincident", 1, 3, 0, 3))
sketch3.addConstraint(Sketcher.Constraint("Coincident", 3, 3, 2, 3))
sketch3.addConstraint(Sketcher.Constraint("Coincident", 5, 3, 4, 3))
sketch3.addConstraint(Sketcher.Constraint("Coincident", 7, 3, 6, 3))
sketch3.addConstraint(Sketcher.Constraint("Coincident", 9, 3, 8, 3))
sketch3.addConstraint(Sketcher.Constraint("Coincident", 11, 3, 10, 3))
sketch3.addConstraint(Sketcher.Constraint("Equal", 0, 2))
sketch3.addConstraint(Sketcher.Constraint("Equal", 1, 3))
sketch3.addConstraint(Sketcher.Constraint("Equal", 2, 4))
sketch3.addConstraint(Sketcher.Constraint("Equal", 3, 5))
sketch3.addConstraint(Sketcher.Constraint("Equal", 4, 6))
sketch3.addConstraint(Sketcher.Constraint("Equal", 5, 7))
sketch3.addConstraint(Sketcher.Constraint("Equal", 6, 8))
sketch3.addConstraint(Sketcher.Constraint("Equal", 7, 9))
sketch3.addConstraint(Sketcher.Constraint("Equal", 8, 10))
sketch3.addConstraint(Sketcher.Constraint("Equal", 9, 11))
sketch3.addConstraint(Sketcher.Constraint("Horizontal", 1, 3, 2, 3))
sketch3.addConstraint(Sketcher.Constraint("Horizontal", 3, 3, 4, 3))
sketch3.addConstraint(Sketcher.Constraint("Horizontal", 7, 3, 8, 3))
sketch3.addConstraint(Sketcher.Constraint("Horizontal", 9, 3, 10, 3))
sketch3.addConstraint(Sketcher.Constraint("Vertical", 1, 3, 6, 3))
sketch3.addConstraint(Sketcher.Constraint("Vertical", 3, 3, 8, 3))
sketch3.addConstraint(Sketcher.Constraint("Vertical", 5, 3, 10, 3))
sketch3.addConstraint(Sketcher.Constraint("Diameter", 0, 7.1))
sketch3.addConstraint(Sketcher.Constraint("Diameter", 1, 4.1))
sketch3.addConstraint(Sketcher.Constraint("DistanceX", 0, 3, -1, 1, 6.0))
sketch3.addConstraint(Sketcher.Constraint("DistanceY", 6, 3, -1, 1, 6.0))
sketch3.addConstraint(Sketcher.Constraint("DistanceX", 0, 3, 4, 3, 120.0))
sketch3.addConstraint(Sketcher.Constraint("DistanceY", 6, 3, 0, 3, 44.0))
sketch3.addConstraint(Sketcher.Constraint("DistanceX", -1, 1, 2, 3, 54.0))
pad3 = body.newObject("PartDesign::Pad", "Pad002")
pad3.Profile = sketch3
pad3.Length = 14
doc.recompute()

fillet = body.newObject("PartDesign::Fillet", "Fillet")
fillet.Base = (pad3, edges_at(pad3, [
    (118, -10, 0.75),
    (-10, -10, 0.75),
    (118, 42, 0.75),
    (-10, 42, 0.75),
]))
fillet.Radius = 3.5

doc.recompute()
